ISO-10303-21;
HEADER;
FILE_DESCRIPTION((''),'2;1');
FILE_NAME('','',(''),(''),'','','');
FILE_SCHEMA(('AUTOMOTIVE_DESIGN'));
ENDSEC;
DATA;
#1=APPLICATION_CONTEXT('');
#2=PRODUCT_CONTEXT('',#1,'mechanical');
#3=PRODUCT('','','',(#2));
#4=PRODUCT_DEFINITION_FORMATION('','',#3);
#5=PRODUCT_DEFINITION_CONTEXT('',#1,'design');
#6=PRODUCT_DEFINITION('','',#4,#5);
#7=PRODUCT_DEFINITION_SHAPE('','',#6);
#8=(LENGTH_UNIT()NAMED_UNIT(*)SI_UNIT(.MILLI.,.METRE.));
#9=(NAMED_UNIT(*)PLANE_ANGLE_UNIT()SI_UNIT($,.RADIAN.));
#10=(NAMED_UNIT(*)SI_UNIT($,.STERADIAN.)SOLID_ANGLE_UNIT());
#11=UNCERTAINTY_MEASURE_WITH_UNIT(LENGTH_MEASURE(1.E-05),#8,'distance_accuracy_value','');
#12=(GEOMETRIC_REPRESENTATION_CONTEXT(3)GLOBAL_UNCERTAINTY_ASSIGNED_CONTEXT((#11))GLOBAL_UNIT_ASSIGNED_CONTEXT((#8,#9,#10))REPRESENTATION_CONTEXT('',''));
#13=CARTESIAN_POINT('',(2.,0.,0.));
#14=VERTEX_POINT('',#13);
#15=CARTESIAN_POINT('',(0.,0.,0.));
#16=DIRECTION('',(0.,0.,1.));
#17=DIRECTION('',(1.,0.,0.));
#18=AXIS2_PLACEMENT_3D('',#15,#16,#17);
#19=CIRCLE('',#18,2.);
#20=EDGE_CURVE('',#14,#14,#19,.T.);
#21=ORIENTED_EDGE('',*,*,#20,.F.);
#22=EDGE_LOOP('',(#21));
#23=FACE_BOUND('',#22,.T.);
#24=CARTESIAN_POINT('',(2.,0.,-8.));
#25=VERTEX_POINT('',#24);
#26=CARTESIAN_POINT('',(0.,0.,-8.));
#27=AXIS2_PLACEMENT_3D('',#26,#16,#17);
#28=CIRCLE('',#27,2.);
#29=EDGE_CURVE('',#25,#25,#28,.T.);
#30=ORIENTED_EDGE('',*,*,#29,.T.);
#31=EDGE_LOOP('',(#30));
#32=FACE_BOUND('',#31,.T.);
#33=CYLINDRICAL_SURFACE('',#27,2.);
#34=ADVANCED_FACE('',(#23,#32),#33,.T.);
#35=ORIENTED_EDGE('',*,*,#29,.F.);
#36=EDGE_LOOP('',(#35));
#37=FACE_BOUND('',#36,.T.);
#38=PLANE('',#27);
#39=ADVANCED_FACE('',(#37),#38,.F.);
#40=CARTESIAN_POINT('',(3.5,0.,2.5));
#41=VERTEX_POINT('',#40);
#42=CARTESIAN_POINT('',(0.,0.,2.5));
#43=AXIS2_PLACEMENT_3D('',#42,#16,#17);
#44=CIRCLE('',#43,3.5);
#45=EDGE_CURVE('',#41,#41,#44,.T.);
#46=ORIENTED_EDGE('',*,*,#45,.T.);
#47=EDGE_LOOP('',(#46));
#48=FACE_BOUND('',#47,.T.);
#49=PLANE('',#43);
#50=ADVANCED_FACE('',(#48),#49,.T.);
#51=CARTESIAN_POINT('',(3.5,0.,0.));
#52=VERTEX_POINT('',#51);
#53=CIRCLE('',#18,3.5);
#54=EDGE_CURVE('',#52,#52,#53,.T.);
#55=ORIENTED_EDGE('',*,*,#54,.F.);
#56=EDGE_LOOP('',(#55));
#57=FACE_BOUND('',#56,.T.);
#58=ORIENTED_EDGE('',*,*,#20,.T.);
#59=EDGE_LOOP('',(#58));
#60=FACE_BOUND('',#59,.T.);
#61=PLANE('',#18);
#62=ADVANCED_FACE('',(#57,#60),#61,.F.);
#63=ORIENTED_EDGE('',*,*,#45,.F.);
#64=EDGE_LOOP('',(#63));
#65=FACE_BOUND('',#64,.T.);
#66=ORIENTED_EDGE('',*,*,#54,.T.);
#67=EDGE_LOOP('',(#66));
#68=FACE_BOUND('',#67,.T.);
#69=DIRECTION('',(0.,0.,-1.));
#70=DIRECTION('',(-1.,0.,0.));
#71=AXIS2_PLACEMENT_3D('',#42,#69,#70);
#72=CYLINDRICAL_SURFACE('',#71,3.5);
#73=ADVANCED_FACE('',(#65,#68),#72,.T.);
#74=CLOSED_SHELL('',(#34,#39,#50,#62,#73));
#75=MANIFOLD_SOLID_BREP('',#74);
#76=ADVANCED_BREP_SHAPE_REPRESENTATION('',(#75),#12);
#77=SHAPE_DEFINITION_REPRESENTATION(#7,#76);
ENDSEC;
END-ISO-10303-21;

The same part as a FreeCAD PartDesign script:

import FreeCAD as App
import Part
import Sketcher

V = App.Vector

doc = App.newDocument("Part")
body = doc.addObject("PartDesign::Body", "Body")

sketch1 = body.newObject("Sketcher::SketchObject", "Sketch")
sketch1.AttachmentSupport = (doc.getObject("XY_Plane"), [""])
sketch1.MapMode = "FlatFace"
sketch1.addGeometry(Part.Circle(V(0, 0, 0), V(0, 0, 1), 2), False)
sketch1.addConstraint([
    Sketcher.Constraint("Coincident", 0, 3, -1, 1),
    Sketcher.Constraint("Diameter", 0, 4.0),
])
pad1 = body.newObject("PartDesign::Pad", "Pad")
pad1.Profile = sketch1
pad1.Length = 8
pad1.Reversed = True

sketch2 = body.newObject("Sketcher::SketchObject", "Sketch001")
sketch2.AttachmentSupport = (doc.getObject("XY_Plane"), [""])
sketch2.MapMode = "FlatFace"
sketch2.addGeometry(Part.Circle(V(0, 0, 0), V(0, 0, 1), 3.5), False)
sketch2.addConstraint([
    Sketcher.Constraint("Coincident", 0, 3, -1, 1),
    Sketcher.Constraint("Diameter", 0, 7.0),
])
pad2 = body.newObject("PartDesign::Pad", "Pad001")
pad2.Profile = sketch2
pad2.Length = 2.5

doc.recompute()
